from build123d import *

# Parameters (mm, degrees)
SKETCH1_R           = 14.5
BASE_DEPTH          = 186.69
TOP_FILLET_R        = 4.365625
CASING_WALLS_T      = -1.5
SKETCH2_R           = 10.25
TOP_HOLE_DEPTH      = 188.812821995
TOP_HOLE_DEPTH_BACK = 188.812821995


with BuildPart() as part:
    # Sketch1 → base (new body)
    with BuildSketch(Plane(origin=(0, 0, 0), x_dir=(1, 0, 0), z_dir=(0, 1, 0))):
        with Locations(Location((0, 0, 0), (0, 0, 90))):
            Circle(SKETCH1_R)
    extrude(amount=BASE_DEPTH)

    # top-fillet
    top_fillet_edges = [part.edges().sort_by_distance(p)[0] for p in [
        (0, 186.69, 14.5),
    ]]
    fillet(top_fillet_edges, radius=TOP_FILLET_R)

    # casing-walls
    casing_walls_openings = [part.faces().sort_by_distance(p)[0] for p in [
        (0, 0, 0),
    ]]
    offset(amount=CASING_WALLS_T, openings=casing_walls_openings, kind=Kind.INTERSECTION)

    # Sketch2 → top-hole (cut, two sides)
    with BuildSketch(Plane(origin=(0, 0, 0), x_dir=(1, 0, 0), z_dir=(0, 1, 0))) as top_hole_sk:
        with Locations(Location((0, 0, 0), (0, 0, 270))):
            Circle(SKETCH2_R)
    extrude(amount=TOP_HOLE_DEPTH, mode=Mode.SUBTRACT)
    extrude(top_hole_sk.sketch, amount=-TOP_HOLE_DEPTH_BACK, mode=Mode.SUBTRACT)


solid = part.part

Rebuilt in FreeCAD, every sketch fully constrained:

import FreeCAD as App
import Part
import Sketcher
from FreeCAD import Vector
Q = App.Units.Quantity


def edges_at(feature, points):
    """Names of the edges that pass closest to the given points."""
    edges = feature.Shape.Edges
    near = lambda p: min(range(len(edges)), key=lambda i: edges[i].distToShape(Part.Vertex(*p))[0])
    return sorted({f"Edge{near(p) + 1}" for p in points})


def faces_at(feature, points):
    """Names of the faces that lie closest to the given points."""
    faces = feature.Shape.Faces
    near = lambda p: min(range(len(faces)), key=lambda i: faces[i].distToShape(Part.Vertex(*p))[0])
    return sorted({f"Face{near(p) + 1}" for p in points})

doc = App.newDocument("Part")
params = doc.addObject("Spreadsheet::Sheet", "Params")
for row, (alias, value) in enumerate([
    ("sketch1_diameter", "29 mm"),
    ("pad1_length", "186.69 mm"),
    ("fillet_radius", "4.365625 mm"),
    ("thickness_wall", "1.5 mm"),
    ("sketch2_diameter", "20.5 mm"),
], start=1):
    params.set(f"A{row}", alias)
    params.set(f"B{row}", "=" + value)
    params.setAlias(f"B{row}", alias)

body = doc.addObject("PartDesign::Body", "Body")

sketch1 = body.newObject("Sketcher::SketchObject", "Sketch")
sketch1.AttachmentSupport = (doc.getObject("XZ_Plane"), [""])
sketch1.MapMode = "FlatFace"
sketch1.addGeometry(Part.Circle(Vector(0, 0, 0), Vector(0, 0, 1), 14), False)
sketch1.addConstraint(Sketcher.Constraint("Coincident", 0, 3, -1, 1))
sketch1.addConstraint(Sketcher.Constraint("Diameter", 0, Q("29 mm")))
sketch1.setExpression("Constraints[1]", "Params.sketch1_diameter")
pad1 = body.newObject("PartDesign::Pad", "Pad")
pad1.Profile = sketch1
pad1.setExpression("Length", "Params.pad1_length")
pad1.Reversed = True
doc.recompute()

fillet = body.newObject("PartDesign::Fillet", "Fillet")
fillet.Base = (pad1, edges_at(pad1, [(0, 186.69, 14.5)]))
fillet.setExpression("Radius", "Params.fillet_radius")
doc.recompute()

thickness = body.newObject("PartDesign::Thickness", "Thickness")
thickness.Base = (fillet, faces_at(fillet, [(0, 0, 0)]))
thickness.setExpression("Value", "Params.thickness_wall")
thickness.Reversed = True
thickness.Join = "Intersection"

sketch2 = body.newObject("Sketcher::SketchObject", "Sketch001")
sketch2.AttachmentSupport = (doc.getObject("XZ_Plane"), [""])
sketch2.MapMode = "FlatFace"
sketch2.addGeometry(Part.Circle(Vector(0, 0, 0), Vector(0, 0, 1), 10), False)
sketch2.addConstraint(Sketcher.Constraint("Coincident", 0, 3, -1, 1))
sketch2.addConstraint(Sketcher.Constraint("Diameter", 0, Q("20.5 mm")))
sketch2.setExpression("Constraints[1]", "Params.sketch2_diameter")
pocket1 = body.newObject("PartDesign::Pocket", "Pocket")
pocket1.Profile = sketch2
pocket1.Type = "ThroughAll"
pocket1.Midplane = True

doc.recompute()
